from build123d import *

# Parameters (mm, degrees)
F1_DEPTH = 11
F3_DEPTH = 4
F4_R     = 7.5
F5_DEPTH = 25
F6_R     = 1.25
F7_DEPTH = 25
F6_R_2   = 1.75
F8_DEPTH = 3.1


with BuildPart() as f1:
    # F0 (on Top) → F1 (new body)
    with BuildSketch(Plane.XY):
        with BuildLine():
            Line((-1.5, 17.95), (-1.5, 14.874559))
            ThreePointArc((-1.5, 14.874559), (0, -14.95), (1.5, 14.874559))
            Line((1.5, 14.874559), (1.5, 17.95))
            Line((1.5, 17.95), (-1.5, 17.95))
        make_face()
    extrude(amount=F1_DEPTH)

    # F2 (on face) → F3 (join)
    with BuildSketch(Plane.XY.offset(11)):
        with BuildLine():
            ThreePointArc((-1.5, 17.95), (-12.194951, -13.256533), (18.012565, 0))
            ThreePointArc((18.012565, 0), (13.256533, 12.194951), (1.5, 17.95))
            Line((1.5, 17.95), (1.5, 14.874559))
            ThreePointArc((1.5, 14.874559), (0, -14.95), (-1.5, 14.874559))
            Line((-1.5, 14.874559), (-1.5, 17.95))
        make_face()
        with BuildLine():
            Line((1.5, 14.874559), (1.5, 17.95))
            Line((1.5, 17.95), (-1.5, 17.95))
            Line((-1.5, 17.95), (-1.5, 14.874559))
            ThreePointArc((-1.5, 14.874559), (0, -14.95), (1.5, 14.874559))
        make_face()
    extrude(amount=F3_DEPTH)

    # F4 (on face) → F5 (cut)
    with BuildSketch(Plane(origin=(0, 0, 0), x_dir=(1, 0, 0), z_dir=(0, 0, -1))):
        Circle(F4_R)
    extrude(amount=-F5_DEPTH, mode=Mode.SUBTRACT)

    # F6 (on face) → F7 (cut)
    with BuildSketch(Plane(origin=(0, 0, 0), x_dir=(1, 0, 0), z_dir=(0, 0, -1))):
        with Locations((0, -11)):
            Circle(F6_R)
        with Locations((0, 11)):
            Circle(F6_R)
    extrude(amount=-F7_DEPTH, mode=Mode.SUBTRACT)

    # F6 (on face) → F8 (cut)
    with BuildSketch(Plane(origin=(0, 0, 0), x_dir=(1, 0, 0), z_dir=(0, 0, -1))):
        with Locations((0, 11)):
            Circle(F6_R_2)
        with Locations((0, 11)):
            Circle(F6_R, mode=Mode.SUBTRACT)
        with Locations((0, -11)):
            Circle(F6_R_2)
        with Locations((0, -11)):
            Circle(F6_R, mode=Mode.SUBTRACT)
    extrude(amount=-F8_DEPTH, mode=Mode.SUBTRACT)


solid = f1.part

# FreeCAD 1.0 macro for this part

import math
import FreeCAD as App
import Part
import Sketcher

V = App.Vector
Q = App.Units.Quantity

doc = App.newDocument("Part")
params = doc.addObject("Spreadsheet::Sheet", "Params")
for row, (alias, value) in enumerate([
    ("sketch1_width", "3 mm"),
    ("sketch1_radius", "14.95 mm"),
    ("pad1_length", "11 mm"),
    ("sketch2_width", "3 mm"),
    ("pad2_length", "4 mm"),
    ("sketch3_diameter", "15 mm"),
    ("pocket1_length", "25 mm"),
    ("sketch4_diameter", "2.5 mm"),
    ("pocket2_length", "25 mm"),
    ("sketch5_diameter", "3.5 mm"),
    ("sketch5_diameter2", "2.5 mm"),
    ("pocket3_length", "3.1 mm"),
], start=1):
    params.set(f"A{row}", alias)
    params.set(f"B{row}", "=" + value)
    params.setAlias(f"B{row}", alias)

body = doc.addObject("PartDesign::Body", "Body")

sketch1 = body.newObject("Sketcher::SketchObject", "Sketch")
sketch1.AttachmentSupport = (doc.getObject("XY_Plane"), [""])
sketch1.MapMode = "FlatFace"
sketch1.addGeometry([
    Part.LineSegment(V(-1.5, 17.9, 0), V(-1.5, 14.9, 0)),
    Part.ArcOfCircle(Part.Circle(V(0, 0, 0), V(0, 0, 1), 15), math.radians(96), math.radians(444)),
    Part.LineSegment(V(1.5, 14.9, 0), V(1.5, 17.9, 0)),
    Part.LineSegment(V(1.5, 17.9, 0), V(-1.5, 17.9, 0)),
], False)
sketch1.addConstraint([
    Sketcher.Constraint("Coincident", 0, 2, 1, 1),
    Sketcher.Constraint("Coincident", 1, 2, 2, 1),
    Sketcher.Constraint("Coincident", 2, 2, 3, 1),
    Sketcher.Constraint("Coincident", 3, 2, 0, 1),
    Sketcher.Constraint("Vertical", 0),
    Sketcher.Constraint("Vertical", 2),
    Sketcher.Constraint("Horizontal", 3),
    Sketcher.Constraint("Coincident", 1, 3, -1, 1),
    Sketcher.Constraint("Horizontal", 0, 2, 1, 2),
    Sketcher.Constraint("DistanceX", 3, 2, 3, 1, Q("3 mm")),
    Sketcher.Constraint("Radius", 1, Q("14.95 mm")),
    Sketcher.Constraint("DistanceY", -1, 1, 2, 2, Q("17.95 mm")),
])
sketch1.setExpression("Constraints[9]", "Params.sketch1_width")
sketch1.setExpression("Constraints[10]", "Params.sketch1_radius")
pad1 = body.newObject("PartDesign::Pad", "Pad")
pad1.Profile = sketch1
pad1.setExpression("Length", "Params.pad1_length")

sketch2 = body.newObject("Sketcher::SketchObject", "Sketch001")
sketch2.AttachmentSupport = (doc.getObject("XY_Plane"), [""])
sketch2.MapMode = "FlatFace"
sketch2.AttachmentOffset = App.Placement(V(0, 0, 11), App.Rotation())
sketch2.addGeometry([
    Part.ArcOfCircle(Part.Circle(V(0, 0, 0), V(0, 0, 1), 18), math.radians(95), math.radians(360)),
    Part.ArcOfCircle(Part.Circle(V(0, 0, 0), V(0, 0, 1), 18), math.radians(0), math.radians(85)),
    Part.LineSegment(V(1.5, 17.9, 0), V(-1.5, 17.9, 0)),
], False)
sketch2.addConstraint([
    Sketcher.Constraint("Tangent", 0, 2, 1, 1),
    Sketcher.Constraint("Coincident", 1, 2, 2, 1),
    Sketcher.Constraint("Coincident", 2, 2, 0, 1),
    Sketcher.Constraint("Horizontal", 2),
    Sketcher.Constraint("Coincident", 0, 3, -1, 1),
    Sketcher.Constraint("Equal", 0, 1),
    Sketcher.Constraint("PointOnObject", 0, 2, -1),
    Sketcher.Constraint("DistanceX", 2, 2, 2, 1, Q("3 mm")),
    Sketcher.Constraint("DistanceY", -1, 1, 1, 2, Q("17.95 mm")),
])
sketch2.setExpression("Constraints[7]", "Params.sketch2_width")
pad2 = body.newObject("PartDesign::Pad", "Pad001")
pad2.Profile = sketch2
pad2.setExpression("Length", "Params.pad2_length")

sketch3 = body.newObject("Sketcher::SketchObject", "Sketch002")
sketch3.AttachmentSupport = (doc.getObject("XY_Plane"), [""])
sketch3.MapMode = "FlatFace"
sketch3.addGeometry(Part.Circle(V(0, 0, 0), V(0, 0, 1), 8), False)
sketch3.addConstraint([
    Sketcher.Constraint("Coincident", 0, 3, -1, 1),
    Sketcher.Constraint("Diameter", 0, Q("15 mm")),
])
sketch3.setExpression("Constraints[1]", "Params.sketch3_diameter")
pocket1 = body.newObject("PartDesign::Pocket", "Pocket")
pocket1.Profile = sketch3
pocket1.setExpression("Length", "Params.pocket1_length")
pocket1.Reversed = True

sketch4 = body.newObject("Sketcher::SketchObject", "Sketch003")
sketch4.AttachmentSupport = (doc.getObject("XY_Plane"), [""])
sketch4.MapMode = "FlatFace"
sketch4.addGeometry([
    Part.Circle(V(0, 11, 0), V(0, 0, 1), 1.2),
    Part.Circle(V(0, -11, 0), V(0, 0, 1), 1.2),
], False)
sketch4.addConstraint([
    Sketcher.Constraint("Equal", 0, 1),
    Sketcher.Constraint("Symmetric", 0, 3, 1, 3, -1, 1),
    Sketcher.Constraint("PointOnObject", 0, 3, -2),
    Sketcher.Constraint("Diameter", 0, Q("2.5 mm")),
    Sketcher.Constraint("DistanceY", -1, 1, 0, 3, Q("11 mm")),
])
sketch4.setExpression("Constraints[3]", "Params.sketch4_diameter")
pocket2 = body.newObject("PartDesign::Pocket", "Pocket001")
pocket2.Profile = sketch4
pocket2.setExpression("Length", "Params.pocket2_length")
pocket2.Reversed = True

sketch5 = body.newObject("Sketcher::SketchObject", "Sketch004")
sketch5.AttachmentSupport = (doc.getObject("XY_Plane"), [""])
sketch5.MapMode = "FlatFace"
sketch5.addGeometry([
    Part.Circle(V(0, -11, 0), V(0, 0, 1), 1.8),
    Part.Circle(V(0, -11, 0), V(0, 0, 1), 1.2),
    Part.Circle(V(0, 11, 0), V(0, 0, 1), 1.8),
    Part.Circle(V(0, 11, 0), V(0, 0, 1), 1.2),
], False)
sketch5.addConstraint([
    Sketcher.Constraint("Coincident", 1, 3, 0, 3),
    Sketcher.Constraint("Coincident", 3, 3, 2, 3),
    Sketcher.Constraint("Equal", 0, 2),
    Sketcher.Constraint("Equal", 1, 3),
    Sketcher.Constraint("Symmetric", 0, 3, 2, 3, -1, 1),
    Sketcher.Constraint("PointOnObject", 0, 3, -2),
    Sketcher.Constraint("Diameter", 0, Q("3.5 mm")),
    Sketcher.Constraint("Diameter", 1, Q("2.5 mm")),
    Sketcher.Constraint("DistanceY", 0, 3, -1, 1, Q("11 mm")),
])
sketch5.setExpression("Constraints[6]", "Params.sketch5_diameter")
sketch5.setExpression("Constraints[7]", "Params.sketch5_diameter2")
pocket3 = body.newObject("PartDesign::Pocket", "Pocket002")
pocket3.Profile = sketch5
pocket3.setExpression("Length", "Params.pocket3_length")
pocket3.Reversed = True

doc.recompute()
